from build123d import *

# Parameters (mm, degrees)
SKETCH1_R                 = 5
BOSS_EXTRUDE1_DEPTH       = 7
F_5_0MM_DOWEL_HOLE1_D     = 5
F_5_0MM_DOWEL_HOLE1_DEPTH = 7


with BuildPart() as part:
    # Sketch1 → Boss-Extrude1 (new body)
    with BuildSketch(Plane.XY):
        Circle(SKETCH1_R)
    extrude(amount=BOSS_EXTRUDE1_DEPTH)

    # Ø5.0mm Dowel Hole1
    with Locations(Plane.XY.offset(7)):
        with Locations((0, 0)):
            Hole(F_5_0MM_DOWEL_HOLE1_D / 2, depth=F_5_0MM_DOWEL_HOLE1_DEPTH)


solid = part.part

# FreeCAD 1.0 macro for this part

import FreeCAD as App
import Part
import Sketcher
from FreeCAD import Vector

doc = App.newDocument("Part")
body = doc.addObject("PartDesign::Body", "Body")

# Sketch on XY plane
sketch1 = body.newObject("Sketcher::SketchObject", "Sketch")
sketch1.AttachmentSupport = (doc.getObject("XY_Plane"), [""])
sketch1.MapMode = "FlatFace"
sketch1.addGeometry(Part.Circle(Vector(0, 0, 0), Vector(0, 0, 1), 5), False)
sketch1.addConstraint(Sketcher.Constraint("Coincident", 0, 3, -1, 1))
sketch1.addConstraint(Sketcher.Constraint("Diameter", 0, 10.0))
pad1 = body.newObject("PartDesign::Pad", "Pad")
pad1.Profile = sketch1
pad1.Length = 7

# Sketch on XY plane
sketch2 = body.newObject("Sketcher::SketchObject", "Sketch001")
sketch2.AttachmentSupport = (doc.getObject("XY_Plane"), [""])
sketch2.MapMode = "FlatFace"
sketch2.AttachmentOffset = App.Placement(Vector(0, 0, 7), App.Rotation())
sketch2.addGeometry(Part.Circle(Vector(0, 0, 0), Vector(0, 0, 1), 2.5), False)
sketch2.addConstraint(Sketcher.Constraint("Coincident", 0, 3, -1, 1))
sketch2.addConstraint(Sketcher.Constraint("Diameter", 0, 5.0))
doc.recompute()
hole = body.newObject("PartDesign::Hole", "Hole")
hole.Profile = sketch2
hole.ThreadType = "None"
hole.Diameter = 5
hole.DepthType = "Dimension"
hole.Depth = 7
hole.DrillPoint = "Flat"

doc.recompute()
